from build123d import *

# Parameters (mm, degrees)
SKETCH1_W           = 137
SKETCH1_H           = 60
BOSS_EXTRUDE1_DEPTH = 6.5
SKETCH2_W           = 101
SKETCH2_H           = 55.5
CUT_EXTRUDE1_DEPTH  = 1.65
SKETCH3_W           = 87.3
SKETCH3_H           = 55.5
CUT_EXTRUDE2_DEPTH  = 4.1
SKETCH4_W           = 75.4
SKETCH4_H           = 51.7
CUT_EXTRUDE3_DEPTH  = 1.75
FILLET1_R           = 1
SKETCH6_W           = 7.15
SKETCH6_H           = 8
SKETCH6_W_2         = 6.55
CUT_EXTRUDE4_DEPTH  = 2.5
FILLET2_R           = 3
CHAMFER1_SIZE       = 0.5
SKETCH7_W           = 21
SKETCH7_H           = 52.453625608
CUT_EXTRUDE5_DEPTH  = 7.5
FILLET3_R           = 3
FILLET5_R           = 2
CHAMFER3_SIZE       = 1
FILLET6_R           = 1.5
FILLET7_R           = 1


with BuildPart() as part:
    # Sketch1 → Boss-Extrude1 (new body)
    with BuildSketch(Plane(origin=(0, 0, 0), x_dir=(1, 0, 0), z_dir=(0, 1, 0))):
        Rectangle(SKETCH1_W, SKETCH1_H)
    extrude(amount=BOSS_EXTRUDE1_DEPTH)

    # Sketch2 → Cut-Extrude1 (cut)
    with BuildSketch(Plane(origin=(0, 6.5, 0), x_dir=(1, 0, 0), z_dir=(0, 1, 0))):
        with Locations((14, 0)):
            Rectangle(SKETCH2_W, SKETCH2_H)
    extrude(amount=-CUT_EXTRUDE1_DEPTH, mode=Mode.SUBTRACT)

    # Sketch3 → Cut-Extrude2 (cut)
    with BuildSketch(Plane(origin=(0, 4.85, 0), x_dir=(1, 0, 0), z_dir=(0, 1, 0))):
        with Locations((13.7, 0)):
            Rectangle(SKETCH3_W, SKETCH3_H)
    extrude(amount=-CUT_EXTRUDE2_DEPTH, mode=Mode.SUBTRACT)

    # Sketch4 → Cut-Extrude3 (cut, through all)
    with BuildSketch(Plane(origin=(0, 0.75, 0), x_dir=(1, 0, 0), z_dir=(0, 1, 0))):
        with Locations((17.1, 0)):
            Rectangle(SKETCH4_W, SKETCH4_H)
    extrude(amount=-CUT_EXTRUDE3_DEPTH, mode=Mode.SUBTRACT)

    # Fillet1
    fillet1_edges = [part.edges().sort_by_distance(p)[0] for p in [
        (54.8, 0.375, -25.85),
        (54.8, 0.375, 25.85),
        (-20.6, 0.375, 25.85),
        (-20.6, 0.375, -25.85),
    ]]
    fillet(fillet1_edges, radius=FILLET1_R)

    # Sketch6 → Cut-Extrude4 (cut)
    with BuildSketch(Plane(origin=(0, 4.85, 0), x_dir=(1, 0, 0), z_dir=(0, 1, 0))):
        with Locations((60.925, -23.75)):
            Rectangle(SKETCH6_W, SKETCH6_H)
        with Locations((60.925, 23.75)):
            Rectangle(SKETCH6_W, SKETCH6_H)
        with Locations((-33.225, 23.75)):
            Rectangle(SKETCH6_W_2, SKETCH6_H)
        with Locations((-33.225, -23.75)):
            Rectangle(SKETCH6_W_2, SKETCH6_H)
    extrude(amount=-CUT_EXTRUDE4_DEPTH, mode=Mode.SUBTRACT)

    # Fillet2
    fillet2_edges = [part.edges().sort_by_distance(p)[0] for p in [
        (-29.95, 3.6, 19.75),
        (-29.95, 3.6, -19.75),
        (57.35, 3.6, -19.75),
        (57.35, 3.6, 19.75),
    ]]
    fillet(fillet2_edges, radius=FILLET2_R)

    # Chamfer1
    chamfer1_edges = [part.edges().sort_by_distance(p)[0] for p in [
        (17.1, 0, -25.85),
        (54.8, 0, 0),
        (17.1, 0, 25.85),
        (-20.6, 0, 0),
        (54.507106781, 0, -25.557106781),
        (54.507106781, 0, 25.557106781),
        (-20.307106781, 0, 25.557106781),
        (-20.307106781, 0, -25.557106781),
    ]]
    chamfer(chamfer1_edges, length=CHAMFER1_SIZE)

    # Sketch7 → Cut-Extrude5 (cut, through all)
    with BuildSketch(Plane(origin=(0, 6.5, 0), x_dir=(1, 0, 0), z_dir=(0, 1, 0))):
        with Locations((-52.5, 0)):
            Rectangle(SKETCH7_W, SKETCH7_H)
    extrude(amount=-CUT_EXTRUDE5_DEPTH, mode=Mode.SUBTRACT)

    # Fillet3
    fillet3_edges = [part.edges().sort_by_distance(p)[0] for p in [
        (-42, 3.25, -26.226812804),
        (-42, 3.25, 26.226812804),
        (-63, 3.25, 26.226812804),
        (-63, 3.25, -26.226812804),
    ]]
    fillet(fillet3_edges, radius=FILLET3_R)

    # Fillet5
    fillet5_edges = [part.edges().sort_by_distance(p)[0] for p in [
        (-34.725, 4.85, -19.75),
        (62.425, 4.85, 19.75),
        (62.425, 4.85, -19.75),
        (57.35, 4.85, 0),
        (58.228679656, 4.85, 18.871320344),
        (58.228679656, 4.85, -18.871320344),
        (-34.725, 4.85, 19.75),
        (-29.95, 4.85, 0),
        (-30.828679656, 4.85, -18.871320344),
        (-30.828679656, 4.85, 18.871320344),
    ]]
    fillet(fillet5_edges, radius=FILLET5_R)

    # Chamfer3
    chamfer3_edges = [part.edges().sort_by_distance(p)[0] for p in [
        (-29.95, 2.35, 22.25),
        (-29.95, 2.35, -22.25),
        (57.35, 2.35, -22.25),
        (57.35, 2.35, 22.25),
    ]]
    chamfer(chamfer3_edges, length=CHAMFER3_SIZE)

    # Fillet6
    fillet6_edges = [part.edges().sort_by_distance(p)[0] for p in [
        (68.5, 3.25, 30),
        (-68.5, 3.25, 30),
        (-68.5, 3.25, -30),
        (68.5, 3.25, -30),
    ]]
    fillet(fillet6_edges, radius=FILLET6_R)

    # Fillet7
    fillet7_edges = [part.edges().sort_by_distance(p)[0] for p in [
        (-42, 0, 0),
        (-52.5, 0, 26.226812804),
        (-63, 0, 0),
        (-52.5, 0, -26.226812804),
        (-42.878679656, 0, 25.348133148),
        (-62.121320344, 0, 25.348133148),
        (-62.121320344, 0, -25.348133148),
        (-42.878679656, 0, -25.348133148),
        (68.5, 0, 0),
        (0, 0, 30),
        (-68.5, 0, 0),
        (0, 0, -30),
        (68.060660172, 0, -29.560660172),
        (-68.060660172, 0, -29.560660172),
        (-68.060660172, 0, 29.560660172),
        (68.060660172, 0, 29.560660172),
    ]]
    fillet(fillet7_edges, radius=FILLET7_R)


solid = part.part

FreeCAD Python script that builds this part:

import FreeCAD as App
import Part
import Sketcher
Q = App.Units.Quantity


def edges_at(feature, points):
    """Names of the edges that pass closest to the given points."""
    edges = feature.Shape.Edges
    near = lambda p: min(range(len(edges)), key=lambda i: edges[i].distToShape(Part.Vertex(*p))[0])
    return sorted({f"Edge{near(p) + 1}" for p in points})


def add_polygon(sketch, points):
    """Adds a closed chain of lines whose ends are joined by coincident constraints."""
    first, n = sketch.GeometryCount, len(points)
    for a, b in zip(points, points[1:] + points[:1]):
        sketch.addGeometry(Part.LineSegment(App.Vector(*a, 0), App.Vector(*b, 0)), False)
    for i in range(n):
        sketch.addConstraint(Sketcher.Constraint("Coincident", first + i, 2, first + (i + 1) % n, 1))

doc = App.newDocument("Part")
body = doc.addObject("PartDesign::Body", "Body")

# Sketch on XZ plane
sketch1 = body.newObject("Sketcher::SketchObject", "Sketch")
sketch1.AttachmentSupport = (doc.getObject("XZ_Plane"), [""])
sketch1.MapMode = "FlatFace"
add_polygon(sketch1, [(-68, -30), (-68, 30), (68, 30), (68, -30)])  # lines 0-3
sketch1.addConstraint(Sketcher.Constraint("Vertical", 0))
sketch1.addConstraint(Sketcher.Constraint("Horizontal", 1))
sketch1.addConstraint(Sketcher.Constraint("Vertical", 2))
sketch1.addConstraint(Sketcher.Constraint("Horizontal", 3))
sketch1.addConstraint(Sketcher.Constraint("Symmetric", 0, 2, 2, 2, -1, 1))
sketch1.addConstraint(Sketcher.Constraint("DistanceX", 1, 1, 1, 2, Q("137 mm")))
sketch1.addConstraint(Sketcher.Constraint("DistanceY", 0, 1, 0, 2, Q("60 mm")))
pad1 = body.newObject("PartDesign::Pad", "Pad")
pad1.Profile = sketch1
pad1.Length = 6.5
pad1.Reversed = True

# Sketch on XZ plane
sketch2 = body.newObject("Sketcher::SketchObject", "Sketch001")
sketch2.AttachmentSupport = (doc.getObject("XZ_Plane"), [""])
sketch2.MapMode = "FlatFace"
sketch2.AttachmentOffset = App.Placement(App.Vector(0, 0, -6.5), App.Rotation())
add_polygon(sketch2, [(-36, -28), (-36, 28), (64, 28), (64, -28)])  # lines 0-3
sketch2.addConstraint(Sketcher.Constraint("Vertical", 0))
sketch2.addConstraint(Sketcher.Constraint("Horizontal", 1))
sketch2.addConstraint(Sketcher.Constraint("Vertical", 2))
sketch2.addConstraint(Sketcher.Constraint("Horizontal", 3))
sketch2.addConstraint(Sketcher.Constraint("DistanceX", 1, 1, 1, 2, Q("101 mm")))
sketch2.addConstraint(Sketcher.Constraint("DistanceY", 0, 1, 0, 2, Q("55.5 mm")))
sketch2.addConstraint(Sketcher.Constraint("DistanceX", 0, 2, -1, 1, Q("36.5 mm")))
sketch2.addConstraint(Sketcher.Constraint("DistanceY", -1, 1, 0, 2, Q("27.75 mm")))
pocket1 = body.newObject("PartDesign::Pocket", "Pocket")
pocket1.Profile = sketch2
pocket1.Length = 1.65
pocket1.Reversed = True

# Sketch on XZ plane
sketch3 = body.newObject("Sketcher::SketchObject", "Sketch002")
sketch3.AttachmentSupport = (doc.getObject("XZ_Plane"), [""])
sketch3.MapMode = "FlatFace"
sketch3.AttachmentOffset = App.Placement(App.Vector(0, 0, -4.85), App.Rotation())
add_polygon(sketch3, [(-30, -28), (-30, 28), (57, 28), (57, -28)])  # lines 0-3
sketch3.addConstraint(Sketcher.Constraint("Vertical", 0))
sketch3.addConstraint(Sketcher.Constraint("Horizontal", 1))
sketch3.addConstraint(Sketcher.Constraint("Vertical", 2))
sketch3.addConstraint(Sketcher.Constraint("Horizontal", 3))
sketch3.addConstraint(Sketcher.Constraint("DistanceX", 1, 1, 1, 2, Q("87.3 mm")))
sketch3.addConstraint(Sketcher.Constraint("DistanceY", 0, 1, 0, 2, Q("55.5 mm")))
sketch3.addConstraint(Sketcher.Constraint("DistanceX", 0, 2, -1, 1, Q("29.95 mm")))
sketch3.addConstraint(Sketcher.Constraint("DistanceY", -1, 1, 0, 2, Q("27.75 mm")))
pocket2 = body.newObject("PartDesign::Pocket", "Pocket001")
pocket2.Profile = sketch3
pocket2.Length = 4.1
pocket2.Reversed = True

# Sketch on XZ plane
sketch4 = body.newObject("Sketcher::SketchObject", "Sketch003")
sketch4.AttachmentSupport = (doc.getObject("XZ_Plane"), [""])
sketch4.MapMode = "FlatFace"
sketch4.AttachmentOffset = App.Placement(App.Vector(0, 0, -0.75), App.Rotation())
add_polygon(sketch4, [(-21, -26), (-21, 26), (55, 26), (55, -26)])  # lines 0-3
sketch4.addConstraint(Sketcher.Constraint("Vertical", 0))
sketch4.addConstraint(Sketcher.Constraint("Horizontal", 1))
sketch4.addConstraint(Sketcher.Constraint("Vertical", 2))
sketch4.addConstraint(Sketcher.Constraint("Horizontal", 3))
sketch4.addConstraint(Sketcher.Constraint("DistanceX", 1, 1, 1, 2, Q("75.4 mm")))
sketch4.addConstraint(Sketcher.Constraint("DistanceY", 0, 1, 0, 2, Q("51.7 mm")))
sketch4.addConstraint(Sketcher.Constraint("DistanceX", 0, 2, -1, 1, Q("20.6 mm")))
sketch4.addConstraint(Sketcher.Constraint("DistanceY", -1, 1, 0, 2, Q("25.85 mm")))
pocket3 = body.newObject("PartDesign::Pocket", "Pocket002")
pocket3.Profile = sketch4
pocket3.Type = "ThroughAll"
pocket3.Reversed = True
doc.recompute()

fillet = body.newObject("PartDesign::Fillet", "Fillet")
fillet.Base = (pocket3, edges_at(pocket3, [
    (54.8, 0.375, -25.85),
    (54.8, 0.375, 25.85),
    (-20.6, 0.375, 25.85),
    (-20.6, 0.375, -25.85),
]))
fillet.Radius = 1

# Sketch on XZ plane
sketch5 = body.newObject("Sketcher::SketchObject", "Sketch004")
sketch5.AttachmentSupport = (doc.getObject("XZ_Plane"), [""])
sketch5.MapMode = "FlatFace"
sketch5.AttachmentOffset = App.Placement(App.Vector(0, 0, -4.85), App.Rotation())
add_polygon(sketch5, [(57, 20), (57, 28), (64, 28), (64, 20)])  # lines 0-3
add_polygon(sketch5, [(57, -28), (57, -20), (64, -20), (64, -28)])  # lines 4-7
add_polygon(sketch5, [(-36, -28), (-36, -20), (-30, -20), (-30, -28)])  # lines 8-11
add_polygon(sketch5, [(-36, 20), (-36, 28), (-30, 28), (-30, 20)])  # lines 12-15
sketch5.addConstraint(Sketcher.Constraint("Vertical", 0))
sketch5.addConstraint(Sketcher.Constraint("Horizontal", 1))
sketch5.addConstraint(Sketcher.Constraint("Vertical", 2))
sketch5.addConstraint(Sketcher.Constraint("Horizontal", 3))
sketch5.addConstraint(Sketcher.Constraint("Vertical", 4))
sketch5.addConstraint(Sketcher.Constraint("Horizontal", 5))
sketch5.addConstraint(Sketcher.Constraint("Vertical", 6))
sketch5.addConstraint(Sketcher.Constraint("Horizontal", 7))
sketch5.addConstraint(Sketcher.Constraint("Vertical", 8))
sketch5.addConstraint(Sketcher.Constraint("Horizontal", 9))
sketch5.addConstraint(Sketcher.Constraint("Vertical", 10))
sketch5.addConstraint(Sketcher.Constraint("Horizontal", 11))
sketch5.addConstraint(Sketcher.Constraint("Vertical", 12))
sketch5.addConstraint(Sketcher.Constraint("Horizontal", 13))
sketch5.addConstraint(Sketcher.Constraint("Vertical", 14))
sketch5.addConstraint(Sketcher.Constraint("Horizontal", 15))
sketch5.addConstraint(Sketcher.Constraint("Symmetric", 3, 2, 4, 2, -1))
sketch5.addConstraint(Sketcher.Constraint("Symmetric", 1, 2, 6, 2, -1))
sketch5.addConstraint(Sketcher.Constraint("Symmetric", 11, 2, 12, 2, -1))
sketch5.addConstraint(Sketcher.Constraint("Symmetric", 9, 2, 14, 2, -1))
sketch5.addConstraint(Sketcher.Constraint("Horizontal", 5, 2, 8, 2))
sketch5.addConstraint(Sketcher.Constraint("Horizontal", 7, 2, 10, 2))
sketch5.addConstraint(Sketcher.Constraint("DistanceY", 0, 1, 0, 2, Q("8 mm")))
sketch5.addConstraint(Sketcher.Constraint("DistanceX", 8, 2, 5, 2, Q("101 mm")))
sketch5.addConstraint(Sketcher.Constraint("DistanceX", 1, 1, 1, 2, Q("7.15 mm")))
sketch5.addConstraint(Sketcher.Constraint("DistanceX", 9, 1, 9, 2, Q("6.55 mm")))
sketch5.addConstraint(Sketcher.Constraint("DistanceX", -1, 1, 1, 2, Q("64.5 mm")))
sketch5.addConstraint(Sketcher.Constraint("DistanceY", 4, 2, 3, 2, Q("39.5 mm")))
pocket4 = body.newObject("PartDesign::Pocket", "Pocket003")
pocket4.Profile = sketch5
pocket4.Length = 2.5
pocket4.Reversed = True
doc.recompute()

fillet2 = body.newObject("PartDesign::Fillet", "Fillet001")
fillet2.Base = (pocket4, edges_at(pocket4, [
    (-29.95, 3.6, 19.75),
    (-29.95, 3.6, -19.75),
    (57.35, 3.6, -19.75),
    (57.35, 3.6, 19.75),
]))
fillet2.Radius = 3
doc.recompute()

chamfer = body.newObject("PartDesign::Chamfer", "Chamfer")
chamfer.Base = (fillet2, edges_at(fillet2, [
    (17.1, 0, -25.85),
    (54.8, 0, 0),
    (17.1, 0, 25.85),
    (-20.6, 0, 0),
    (54.507, 0, -25.557),
    (54.507, 0, 25.557),
    (-20.307, 0, 25.557),
    (-20.307, 0, -25.557),
]))
chamfer.Size = 0.5

# Sketch on XZ plane
sketch6 = body.newObject("Sketcher::SketchObject", "Sketch005")
sketch6.AttachmentSupport = (doc.getObject("XZ_Plane"), [""])
sketch6.MapMode = "FlatFace"
sketch6.AttachmentOffset = App.Placement(App.Vector(0, 0, -6.5), App.Rotation())
add_polygon(sketch6, [(-63, -26), (-63, 26), (-42, 26), (-42, -26)])  # lines 0-3
sketch6.addConstraint(Sketcher.Constraint("Vertical", 0))
sketch6.addConstraint(Sketcher.Constraint("Horizontal", 1))
sketch6.addConstraint(Sketcher.Constraint("Vertical", 2))
sketch6.addConstraint(Sketcher.Constraint("Horizontal", 3))
sketch6.addConstraint(Sketcher.Constraint("DistanceX", 1, 1, 1, 2, Q("21 mm")))
sketch6.addConstraint(Sketcher.Constraint("DistanceX", 0, 2, -1, 1, Q("63 mm")))
sketch6.addConstraint(Sketcher.Constraint("DistanceY", 0, 1, 0, 2, Q("52.453626 mm")))
sketch6.addConstraint(Sketcher.Constraint("DistanceY", -1, 1, 0, 2, Q("26.226813 mm")))
pocket5 = body.newObject("PartDesign::Pocket", "Pocket004")
pocket5.Profile = sketch6
pocket5.Type = "ThroughAll"
pocket5.Reversed = True
doc.recompute()

fillet3 = body.newObject("PartDesign::Fillet", "Fillet002")
fillet3.Base = (pocket5, edges_at(pocket5, [
    (-42, 3.25, -26.227),
    (-42, 3.25, 26.227),
    (-63, 3.25, 26.227),
    (-63, 3.25, -26.227),
]))
fillet3.Radius = 3
doc.recompute()

fillet4 = body.newObject("PartDesign::Fillet", "Fillet003")
fillet4.Base = (fillet3, edges_at(fillet3, [
    (-34.725, 4.85, -19.75),
    (62.425, 4.85, 19.75),
    (62.425, 4.85, -19.75),
    (57.35, 4.85, 0),
    (58.229, 4.85, 18.871),
    (58.229, 4.85, -18.871),
    (-34.725, 4.85, 19.75),
    (-29.95, 4.85, 0),
    (-30.829, 4.85, -18.871),
    (-30.829, 4.85, 18.871),
]))
fillet4.Radius = 2
doc.recompute()

chamfer2 = body.newObject("PartDesign::Chamfer", "Chamfer001")
chamfer2.Base = (fillet4, edges_at(fillet4, [
    (-29.95, 2.35, 22.25),
    (-29.95, 2.35, -22.25),
    (57.35, 2.35, -22.25),
    (57.35, 2.35, 22.25),
]))
chamfer2.Size = 1
doc.recompute()

fillet5 = body.newObject("PartDesign::Fillet", "Fillet004")
fillet5.Base = (chamfer2, edges_at(chamfer2, [
    (68.5, 3.25, 30),
    (-68.5, 3.25, 30),
    (-68.5, 3.25, -30),
    (68.5, 3.25, -30),
]))
fillet5.Radius = 1.5
doc.recompute()

fillet6 = body.newObject("PartDesign::Fillet", "Fillet005")
fillet6.Base = (fillet5, edges_at(fillet5, [
    (-42, 0, 0),
    (-52.5, 0, 26.227),
    (-63, 0, 0),
    (-52.5, 0, -26.227),
    (-42.879, 0, 25.348),
    (-62.121, 0, 25.348),
    (-62.121, 0, -25.348),
    (-42.879, 0, -25.348),
    (68.5, 0, 0),
    (0, 0, 30),
    (-68.5, 0, 0),
    (0, 0, -30),
    (68.061, 0, -29.561),
    (-68.061, 0, -29.561),
    (-68.061, 0, 29.561),
    (68.061, 0, 29.561),
]))
fillet6.Radius = 1

doc.recompute()
